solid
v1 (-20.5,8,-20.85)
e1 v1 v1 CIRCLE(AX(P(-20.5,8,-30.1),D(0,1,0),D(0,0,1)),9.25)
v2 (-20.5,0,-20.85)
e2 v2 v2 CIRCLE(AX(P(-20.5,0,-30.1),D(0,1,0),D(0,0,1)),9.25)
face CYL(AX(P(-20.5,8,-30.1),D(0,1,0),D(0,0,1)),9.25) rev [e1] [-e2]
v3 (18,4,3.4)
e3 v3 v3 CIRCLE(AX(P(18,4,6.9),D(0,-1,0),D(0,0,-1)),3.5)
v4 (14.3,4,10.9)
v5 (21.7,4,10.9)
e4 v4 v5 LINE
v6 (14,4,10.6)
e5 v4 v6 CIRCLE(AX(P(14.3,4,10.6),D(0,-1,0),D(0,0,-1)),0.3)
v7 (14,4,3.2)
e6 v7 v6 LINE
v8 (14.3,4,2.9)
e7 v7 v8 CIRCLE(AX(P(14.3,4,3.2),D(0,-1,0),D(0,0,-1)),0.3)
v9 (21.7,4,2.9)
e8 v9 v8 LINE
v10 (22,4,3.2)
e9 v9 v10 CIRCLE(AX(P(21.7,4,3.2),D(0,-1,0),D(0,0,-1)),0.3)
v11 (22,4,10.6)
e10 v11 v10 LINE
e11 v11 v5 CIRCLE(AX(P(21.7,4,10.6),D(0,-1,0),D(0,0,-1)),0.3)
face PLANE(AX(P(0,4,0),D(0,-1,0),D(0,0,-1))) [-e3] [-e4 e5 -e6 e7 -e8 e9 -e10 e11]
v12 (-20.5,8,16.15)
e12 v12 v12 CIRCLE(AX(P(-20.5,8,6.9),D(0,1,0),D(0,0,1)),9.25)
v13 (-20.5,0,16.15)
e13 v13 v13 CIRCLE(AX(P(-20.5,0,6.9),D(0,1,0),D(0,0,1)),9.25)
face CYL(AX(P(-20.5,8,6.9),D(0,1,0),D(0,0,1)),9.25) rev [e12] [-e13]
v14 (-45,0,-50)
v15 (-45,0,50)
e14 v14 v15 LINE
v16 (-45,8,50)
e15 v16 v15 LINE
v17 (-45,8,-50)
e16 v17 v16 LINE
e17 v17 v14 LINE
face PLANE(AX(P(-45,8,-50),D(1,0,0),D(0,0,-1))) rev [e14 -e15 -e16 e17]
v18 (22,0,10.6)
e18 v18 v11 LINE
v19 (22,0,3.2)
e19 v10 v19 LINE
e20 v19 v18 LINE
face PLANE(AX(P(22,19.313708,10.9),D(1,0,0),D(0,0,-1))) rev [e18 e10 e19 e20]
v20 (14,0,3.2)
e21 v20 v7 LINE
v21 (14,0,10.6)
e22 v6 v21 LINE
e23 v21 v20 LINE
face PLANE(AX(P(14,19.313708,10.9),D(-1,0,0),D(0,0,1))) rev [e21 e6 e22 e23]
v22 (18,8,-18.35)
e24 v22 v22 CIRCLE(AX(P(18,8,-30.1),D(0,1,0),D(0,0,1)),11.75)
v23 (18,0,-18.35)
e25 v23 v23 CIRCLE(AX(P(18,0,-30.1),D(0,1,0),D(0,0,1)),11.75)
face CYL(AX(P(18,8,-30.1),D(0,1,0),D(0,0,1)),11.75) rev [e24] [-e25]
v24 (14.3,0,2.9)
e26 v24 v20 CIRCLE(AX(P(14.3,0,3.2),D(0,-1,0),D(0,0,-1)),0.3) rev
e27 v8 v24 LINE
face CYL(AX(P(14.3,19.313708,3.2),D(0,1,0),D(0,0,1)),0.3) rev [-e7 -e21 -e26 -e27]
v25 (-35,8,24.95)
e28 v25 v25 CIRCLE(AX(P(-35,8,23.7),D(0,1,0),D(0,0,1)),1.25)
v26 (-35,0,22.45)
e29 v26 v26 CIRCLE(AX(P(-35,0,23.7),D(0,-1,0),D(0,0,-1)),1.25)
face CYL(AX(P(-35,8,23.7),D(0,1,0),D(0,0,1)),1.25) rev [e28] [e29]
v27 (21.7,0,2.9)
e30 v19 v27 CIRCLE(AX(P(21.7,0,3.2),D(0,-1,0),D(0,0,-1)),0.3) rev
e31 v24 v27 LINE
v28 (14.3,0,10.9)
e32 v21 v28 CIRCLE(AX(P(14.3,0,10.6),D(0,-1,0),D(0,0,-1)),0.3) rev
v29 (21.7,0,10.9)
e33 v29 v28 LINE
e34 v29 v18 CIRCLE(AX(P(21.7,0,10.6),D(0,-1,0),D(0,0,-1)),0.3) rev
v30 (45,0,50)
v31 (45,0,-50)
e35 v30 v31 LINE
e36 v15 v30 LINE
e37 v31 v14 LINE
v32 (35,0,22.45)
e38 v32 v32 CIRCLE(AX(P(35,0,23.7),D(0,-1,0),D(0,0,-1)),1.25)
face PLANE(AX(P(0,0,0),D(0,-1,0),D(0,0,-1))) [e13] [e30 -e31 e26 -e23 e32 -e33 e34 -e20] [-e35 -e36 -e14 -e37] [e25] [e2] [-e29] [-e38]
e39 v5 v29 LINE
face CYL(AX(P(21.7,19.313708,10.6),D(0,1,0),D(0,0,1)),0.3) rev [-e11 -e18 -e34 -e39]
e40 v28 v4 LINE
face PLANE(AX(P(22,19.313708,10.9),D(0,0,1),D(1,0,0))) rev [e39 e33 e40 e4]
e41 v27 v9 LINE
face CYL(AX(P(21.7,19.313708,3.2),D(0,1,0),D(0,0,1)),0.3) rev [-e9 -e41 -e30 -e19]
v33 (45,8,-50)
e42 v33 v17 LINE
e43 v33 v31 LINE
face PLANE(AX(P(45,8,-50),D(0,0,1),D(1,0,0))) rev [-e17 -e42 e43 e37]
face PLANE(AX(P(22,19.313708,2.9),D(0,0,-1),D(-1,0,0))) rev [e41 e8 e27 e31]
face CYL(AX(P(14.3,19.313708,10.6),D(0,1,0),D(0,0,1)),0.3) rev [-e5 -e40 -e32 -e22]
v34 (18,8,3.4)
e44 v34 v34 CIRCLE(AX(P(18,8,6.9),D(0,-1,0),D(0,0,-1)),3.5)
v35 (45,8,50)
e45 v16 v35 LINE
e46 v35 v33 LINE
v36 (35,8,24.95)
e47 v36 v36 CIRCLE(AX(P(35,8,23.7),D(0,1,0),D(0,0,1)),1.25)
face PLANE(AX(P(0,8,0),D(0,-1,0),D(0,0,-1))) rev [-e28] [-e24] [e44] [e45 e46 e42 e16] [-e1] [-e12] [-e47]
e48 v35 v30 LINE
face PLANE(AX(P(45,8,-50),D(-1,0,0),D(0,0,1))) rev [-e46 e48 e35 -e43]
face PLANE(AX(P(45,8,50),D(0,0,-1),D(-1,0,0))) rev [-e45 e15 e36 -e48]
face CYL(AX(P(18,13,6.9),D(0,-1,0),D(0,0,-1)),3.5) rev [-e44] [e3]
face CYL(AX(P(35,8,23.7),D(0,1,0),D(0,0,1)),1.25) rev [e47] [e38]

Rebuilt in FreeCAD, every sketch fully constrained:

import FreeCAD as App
import Part
import Sketcher
from FreeCAD import Vector


def edges_at(feature, points):
    """Names of the edges that pass closest to the given points."""
    edges = feature.Shape.Edges
    near = lambda p: min(range(len(edges)), key=lambda i: edges[i].distToShape(Part.Vertex(*p))[0])
    return sorted({f"Edge{near(p) + 1}" for p in points})

doc = App.newDocument("Part")
body = doc.addObject("PartDesign::Body", "Body")

sketch1 = body.newObject("Sketcher::SketchObject", "Sketch")
sketch1.AttachmentSupport = (doc.getObject("XZ_Plane"), [""])
sketch1.MapMode = "FlatFace"
sketch1.addGeometry([
    Part.LineSegment(Vector(-45, -50, 0), Vector(-45, 50, 0)),
    Part.LineSegment(Vector(-45, 50, 0), Vector(45, 50, 0)),
    Part.LineSegment(Vector(45, 50, 0), Vector(45, -50, 0)),
    Part.LineSegment(Vector(45, -50, 0), Vector(-45, -50, 0)),
], False)
sketch1.addConstraint([
    Sketcher.Constraint("Coincident", 0, 2, 1, 1),
    Sketcher.Constraint("Coincident", 1, 2, 2, 1),
    Sketcher.Constraint("Coincident", 2, 2, 3, 1),
    Sketcher.Constraint("Coincident", 3, 2, 0, 1),
    Sketcher.Constraint("Vertical", 0),
    Sketcher.Constraint("Horizontal", 1),
    Sketcher.Constraint("Vertical", 2),
    Sketcher.Constraint("Horizontal", 3),
    Sketcher.Constraint("Symmetric", 0, 2, 2, 2, -1, 1),
    Sketcher.Constraint("DistanceX", 1, 1, 1, 2, 90.0),
    Sketcher.Constraint("DistanceY", 0, 1, 0, 2, 100.0),
])
pad1 = body.newObject("PartDesign::Pad", "Pad")
pad1.Profile = sketch1
pad1.Length = 8
pad1.Reversed = True

sketch2 = body.newObject("Sketcher::SketchObject", "Sketch001")
sketch2.AttachmentSupport = (doc.getObject("XZ_Plane"), [""])
sketch2.MapMode = "FlatFace"
sketch2.AttachmentOffset = App.Placement(Vector(0, 0, -8), App.Rotation())
sketch2.addGeometry([
    Part.Circle(Vector(-20.5, -30.1, 0), Vector(0, 0, 1), 9.25),
    Part.Circle(Vector(18, -30.1, 0), Vector(0, 0, 1), 9.25),
    Part.Circle(Vector(-20.5, 6.9, 0), Vector(0, 0, 1), 9.25),
], False)
sketch2.addConstraint([
    Sketcher.Constraint("Equal", 0, 1),
    Sketcher.Constraint("Equal", 1, 2),
    Sketcher.Constraint("Horizontal", 0, 3, 1, 3),
    Sketcher.Constraint("Vertical", 0, 3, 2, 3),
    Sketcher.Constraint("Diameter", 0, 18.5),
    Sketcher.Constraint("DistanceX", -1, 1, 1, 3, 18.0),
    Sketcher.Constraint("DistanceY", 0, 3, 2, 3, 37.0),
    Sketcher.Constraint("DistanceX", 0, 3, -1, 1, 20.5),
    Sketcher.Constraint("DistanceY", 0, 3, -1, 1, 30.1),
])
doc.recompute()
hole = body.newObject("PartDesign::Hole", "Hole")
hole.Profile = sketch2
hole.ThreadType = "None"
hole.Diameter = 18.5
hole.DepthType = "ThroughAll"
hole.Reversed = True

sketch3 = body.newObject("Sketcher::SketchObject", "Sketch002")
sketch3.AttachmentSupport = (doc.getObject("XZ_Plane"), [""])
sketch3.MapMode = "FlatFace"
sketch3.AttachmentOffset = App.Placement(Vector(0, 0, -8), App.Rotation())
sketch3.addGeometry(Part.Circle(Vector(18, -30.1, 0), Vector(0, 0, 1), 11.75), False)
sketch3.addConstraint([
    Sketcher.Constraint("Diameter", 0, 23.5),
    Sketcher.Constraint("DistanceX", -1, 1, 0, 3, 18.0),
    Sketcher.Constraint("DistanceY", 0, 3, -1, 1, 30.1),
])
doc.recompute()
hole2 = body.newObject("PartDesign::Hole", "Hole001")
hole2.Profile = sketch3
hole2.ThreadType = "None"
hole2.Diameter = 23.5
hole2.DepthType = "ThroughAll"
hole2.Reversed = True

sketch4 = body.newObject("Sketcher::SketchObject", "Sketch003")
sketch4.AttachmentSupport = (doc.getObject("XZ_Plane"), [""])
sketch4.MapMode = "FlatFace"
sketch4.addGeometry([
    Part.LineSegment(Vector(14, 10.9, 0), Vector(14, 2.9, 0)),
    Part.LineSegment(Vector(14, 2.9, 0), Vector(22, 2.9, 0)),
    Part.LineSegment(Vector(22, 2.9, 0), Vector(22, 10.9, 0)),
    Part.LineSegment(Vector(22, 10.9, 0), Vector(14, 10.9, 0)),
], False)
sketch4.addConstraint([
    Sketcher.Constraint("Coincident", 0, 2, 1, 1),
    Sketcher.Constraint("Coincident", 1, 2, 2, 1),
    Sketcher.Constraint("Coincident", 2, 2, 3, 1),
    Sketcher.Constraint("Coincident", 3, 2, 0, 1),
    Sketcher.Constraint("Vertical", 0),
    Sketcher.Constraint("Horizontal", 1),
    Sketcher.Constraint("Vertical", 2),
    Sketcher.Constraint("Horizontal", 3),
    Sketcher.Constraint("Equal", 3, 0),
    Sketcher.Constraint("DistanceX", 1, 1, 1, 2, 8.0),
    Sketcher.Constraint("DistanceX", -1, 1, 0, 2, 14.0),
    Sketcher.Constraint("DistanceY", -1, 1, 0, 2, 2.9),
])
pocket1 = body.newObject("PartDesign::Pocket", "Pocket")
pocket1.Profile = sketch4
pocket1.Length = 4
doc.recompute()

fillet = body.newObject("PartDesign::Fillet", "Fillet")
fillet.Base = (pocket1, edges_at(pocket1, [
    (14, 2, 2.9),
    (14, 2, 10.9),
    (22, 2, 10.9),
    (22, 2, 2.9),
]))
fillet.Radius = 0.3

sketch5 = body.newObject("Sketcher::SketchObject", "Sketch004")
sketch5.AttachmentSupport = (doc.getObject("XZ_Plane"), [""])
sketch5.MapMode = "FlatFace"
sketch5.AttachmentOffset = App.Placement(Vector(0, 0, -4), App.Rotation())
sketch5.addGeometry(Part.Circle(Vector(18, 6.9, 0), Vector(0, 0, 1), 3.5), False)
sketch5.addConstraint([
    Sketcher.Constraint("Diameter", 0, 7.0),
    Sketcher.Constraint("DistanceX", -1, 1, 0, 3, 18.0),
    Sketcher.Constraint("DistanceY", -1, 1, 0, 3, 6.9),
])
pocket2 = body.newObject("PartDesign::Pocket", "Pocket001")
pocket2.Profile = sketch5
pocket2.Length = 9

sketch6 = body.newObject("Sketcher::SketchObject", "Sketch005")
sketch6.AttachmentSupport = (doc.getObject("XZ_Plane"), [""])
sketch6.MapMode = "FlatFace"
sketch6.AttachmentOffset = App.Placement(Vector(0, 0, -8), App.Rotation())
sketch6.addGeometry([
    Part.Circle(Vector(35, 23.7, 0), Vector(0, 0, 1), 1.25),
    Part.Circle(Vector(-35, 23.7, 0), Vector(0, 0, 1), 1.25),
], False)
sketch6.addConstraint([
    Sketcher.Constraint("Equal", 0, 1),
    Sketcher.Constraint("Symmetric", 0, 3, 1, 3, -2),
    Sketcher.Constraint("Diameter", 0, 2.5),
    Sketcher.Constraint("DistanceX", -1, 1, 0, 3, 35.0),
    Sketcher.Constraint("DistanceY", -1, 1, 0, 3, 23.7),
])
doc.recompute()
hole3 = body.newObject("PartDesign::Hole", "Hole002")
hole3.Profile = sketch6
hole3.ThreadType = "None"
hole3.Diameter = 2.5
hole3.DepthType = "Dimension"
hole3.Depth = 8.5
hole3.DrillPoint = "Angled"
hole3.DrillPointAngle = 118
hole3.Reversed = True

doc.recompute()
